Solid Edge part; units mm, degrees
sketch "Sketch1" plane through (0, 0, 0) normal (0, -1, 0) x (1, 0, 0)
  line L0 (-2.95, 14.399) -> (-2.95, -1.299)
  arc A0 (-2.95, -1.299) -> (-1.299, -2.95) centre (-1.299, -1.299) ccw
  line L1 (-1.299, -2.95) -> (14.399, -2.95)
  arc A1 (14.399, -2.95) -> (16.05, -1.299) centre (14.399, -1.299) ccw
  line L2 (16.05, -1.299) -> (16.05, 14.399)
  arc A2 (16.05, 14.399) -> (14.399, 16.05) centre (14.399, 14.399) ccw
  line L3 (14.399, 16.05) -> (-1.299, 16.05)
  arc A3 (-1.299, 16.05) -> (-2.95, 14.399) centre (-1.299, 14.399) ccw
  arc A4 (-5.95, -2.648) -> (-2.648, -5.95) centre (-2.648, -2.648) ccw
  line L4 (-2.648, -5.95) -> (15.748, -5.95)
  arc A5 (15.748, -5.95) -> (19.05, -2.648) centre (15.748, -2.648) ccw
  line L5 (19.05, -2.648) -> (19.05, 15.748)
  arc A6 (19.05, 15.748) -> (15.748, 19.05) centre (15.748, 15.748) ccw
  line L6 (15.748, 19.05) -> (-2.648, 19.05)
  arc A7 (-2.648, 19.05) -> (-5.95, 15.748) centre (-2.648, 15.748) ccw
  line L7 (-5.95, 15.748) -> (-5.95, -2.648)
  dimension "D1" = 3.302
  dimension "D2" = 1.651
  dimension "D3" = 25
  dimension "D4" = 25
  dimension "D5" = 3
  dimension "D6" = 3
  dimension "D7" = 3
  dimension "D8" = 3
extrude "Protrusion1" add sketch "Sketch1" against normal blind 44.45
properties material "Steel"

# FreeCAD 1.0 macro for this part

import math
import FreeCAD as App
import Part
import Sketcher
from FreeCAD import Vector
Q = App.Units.Quantity

doc = App.newDocument("Part")
body = doc.addObject("PartDesign::Body", "Body")

# Sketch on XZ plane
sketch1 = body.newObject("Sketcher::SketchObject", "Sketch")
sketch1.AttachmentSupport = (doc.getObject("XZ_Plane"), [""])
sketch1.MapMode = "FlatFace"
sketch1.addGeometry(Part.LineSegment(Vector(-5.95, 15.748, 0), Vector(-5.95, -2.648, 0)), False)
sketch1.addGeometry(Part.ArcOfCircle(Part.Circle(Vector(-2.648, -2.648, 0), Vector(0, 0, 1), 3.302), math.radians(180), math.radians(270)), False)
sketch1.addGeometry(Part.LineSegment(Vector(-2.648, -5.95, 0), Vector(15.748, -5.95, 0)), False)
sketch1.addGeometry(Part.ArcOfCircle(Part.Circle(Vector(15.748, -2.648, 0), Vector(0, 0, 1), 3.302), math.radians(-90), math.radians(0)), False)
sketch1.addGeometry(Part.LineSegment(Vector(19.05, -2.648, 0), Vector(19.05, 15.748, 0)), False)
sketch1.addGeometry(Part.ArcOfCircle(Part.Circle(Vector(15.748, 15.748, 0), Vector(0, 0, 1), 3.302), math.radians(0), math.radians(90)), False)
sketch1.addGeometry(Part.LineSegment(Vector(15.748, 19.05, 0), Vector(-2.648, 19.05, 0)), False)
sketch1.addGeometry(Part.ArcOfCircle(Part.Circle(Vector(-2.648, 15.748, 0), Vector(0, 0, 1), 3.302), math.radians(90), math.radians(180)), False)
sketch1.addGeometry(Part.LineSegment(Vector(-2.95, -1.299, 0), Vector(-2.95, 14.399, 0)), False)
sketch1.addGeometry(Part.ArcOfCircle(Part.Circle(Vector(-1.299, 14.399, 0), Vector(0, 0, 1), 1.651), math.radians(90), math.radians(180)), False)
sketch1.addGeometry(Part.LineSegment(Vector(-1.299, 16.05, 0), Vector(14.399, 16.05, 0)), False)
sketch1.addGeometry(Part.ArcOfCircle(Part.Circle(Vector(14.399, 14.399, 0), Vector(0, 0, 1), 1.651), math.radians(0), math.radians(90)), False)
sketch1.addGeometry(Part.LineSegment(Vector(16.05, 14.399, 0), Vector(16.05, -1.299, 0)), False)
sketch1.addGeometry(Part.ArcOfCircle(Part.Circle(Vector(14.399, -1.299, 0), Vector(0, 0, 1), 1.651), math.radians(-90), math.radians(0)), False)
sketch1.addGeometry(Part.LineSegment(Vector(14.399, -2.95, 0), Vector(-1.299, -2.95, 0)), False)
sketch1.addGeometry(Part.ArcOfCircle(Part.Circle(Vector(-1.299, -1.299, 0), Vector(0, 0, 1), 1.651), math.radians(180), math.radians(270)), False)
sketch1.addConstraint(Sketcher.Constraint("Tangent", 0, 2, 1, 1))
sketch1.addConstraint(Sketcher.Constraint("Tangent", 1, 2, 2, 1))
sketch1.addConstraint(Sketcher.Constraint("Tangent", 2, 2, 3, 1))
sketch1.addConstraint(Sketcher.Constraint("Tangent", 3, 2, 4, 1))
sketch1.addConstraint(Sketcher.Constraint("Tangent", 4, 2, 5, 1))
sketch1.addConstraint(Sketcher.Constraint("Tangent", 5, 2, 6, 1))
sketch1.addConstraint(Sketcher.Constraint("Tangent", 6, 2, 7, 1))
sketch1.addConstraint(Sketcher.Constraint("Tangent", 7, 2, 0, 1))
sketch1.addConstraint(Sketcher.Constraint("Tangent", 8, 2, 9, 2))
sketch1.addConstraint(Sketcher.Constraint("Tangent", 9, 1, 10, 1))
sketch1.addConstraint(Sketcher.Constraint("Tangent", 10, 2, 11, 2))
sketch1.addConstraint(Sketcher.Constraint("Tangent", 11, 1, 12, 1))
sketch1.addConstraint(Sketcher.Constraint("Tangent", 12, 2, 13, 2))
sketch1.addConstraint(Sketcher.Constraint("Tangent", 13, 1, 14, 1))
sketch1.addConstraint(Sketcher.Constraint("Tangent", 14, 2, 15, 2))
sketch1.addConstraint(Sketcher.Constraint("Tangent", 15, 1, 8, 1))
sketch1.addConstraint(Sketcher.Constraint("Vertical", 0))
sketch1.addConstraint(Sketcher.Constraint("Horizontal", 2))
sketch1.addConstraint(Sketcher.Constraint("Vertical", 4))
sketch1.addConstraint(Sketcher.Constraint("Horizontal", 6))
sketch1.addConstraint(Sketcher.Constraint("Vertical", 8))
sketch1.addConstraint(Sketcher.Constraint("Horizontal", 10))
sketch1.addConstraint(Sketcher.Constraint("Vertical", 12))
sketch1.addConstraint(Sketcher.Constraint("Horizontal", 14))
sketch1.addConstraint(Sketcher.Constraint("Equal", 1, 3))
sketch1.addConstraint(Sketcher.Constraint("Equal", 3, 5))
sketch1.addConstraint(Sketcher.Constraint("Equal", 5, 7))
sketch1.addConstraint(Sketcher.Constraint("Equal", 9, 11))
sketch1.addConstraint(Sketcher.Constraint("Equal", 11, 13))
sketch1.addConstraint(Sketcher.Constraint("Equal", 13, 15))
sketch1.addConstraint(Sketcher.Constraint("Equal", 6, 0))
sketch1.addConstraint(Sketcher.Constraint("Equal", 14, 8))
sketch1.addConstraint(Sketcher.Constraint("Radius", 1, Q("0.13 in")))
sketch1.addConstraint(Sketcher.Constraint("Radius", 9, Q("0.065 in")))
sketch1.addConstraint(Sketcher.Constraint("DistanceX", -1, 1, 3, 3, Q("0.62 in")))
sketch1.addConstraint(Sketcher.Constraint("DistanceY", -1, 1, 5, 3, Q("0.62 in")))
sketch1.addConstraint(Sketcher.Constraint("DistanceX", 2, 1, 2, 2, 18.396))
sketch1.addConstraint(Sketcher.Constraint("DistanceX", 10, 1, 10, 2, 15.698))
sketch1.addConstraint(Sketcher.Constraint("DistanceY", -1, 1, 9, 3, Q("0.5669 in")))
sketch1.addConstraint(Sketcher.Constraint("DistanceX", -1, 1, 11, 3, Q("0.5669 in")))
pad1 = body.newObject("PartDesign::Pad", "Pad")
pad1.Profile = sketch1
pad1.Length = Q("1.75 in")
pad1.Reversed = True

doc.recompute()
